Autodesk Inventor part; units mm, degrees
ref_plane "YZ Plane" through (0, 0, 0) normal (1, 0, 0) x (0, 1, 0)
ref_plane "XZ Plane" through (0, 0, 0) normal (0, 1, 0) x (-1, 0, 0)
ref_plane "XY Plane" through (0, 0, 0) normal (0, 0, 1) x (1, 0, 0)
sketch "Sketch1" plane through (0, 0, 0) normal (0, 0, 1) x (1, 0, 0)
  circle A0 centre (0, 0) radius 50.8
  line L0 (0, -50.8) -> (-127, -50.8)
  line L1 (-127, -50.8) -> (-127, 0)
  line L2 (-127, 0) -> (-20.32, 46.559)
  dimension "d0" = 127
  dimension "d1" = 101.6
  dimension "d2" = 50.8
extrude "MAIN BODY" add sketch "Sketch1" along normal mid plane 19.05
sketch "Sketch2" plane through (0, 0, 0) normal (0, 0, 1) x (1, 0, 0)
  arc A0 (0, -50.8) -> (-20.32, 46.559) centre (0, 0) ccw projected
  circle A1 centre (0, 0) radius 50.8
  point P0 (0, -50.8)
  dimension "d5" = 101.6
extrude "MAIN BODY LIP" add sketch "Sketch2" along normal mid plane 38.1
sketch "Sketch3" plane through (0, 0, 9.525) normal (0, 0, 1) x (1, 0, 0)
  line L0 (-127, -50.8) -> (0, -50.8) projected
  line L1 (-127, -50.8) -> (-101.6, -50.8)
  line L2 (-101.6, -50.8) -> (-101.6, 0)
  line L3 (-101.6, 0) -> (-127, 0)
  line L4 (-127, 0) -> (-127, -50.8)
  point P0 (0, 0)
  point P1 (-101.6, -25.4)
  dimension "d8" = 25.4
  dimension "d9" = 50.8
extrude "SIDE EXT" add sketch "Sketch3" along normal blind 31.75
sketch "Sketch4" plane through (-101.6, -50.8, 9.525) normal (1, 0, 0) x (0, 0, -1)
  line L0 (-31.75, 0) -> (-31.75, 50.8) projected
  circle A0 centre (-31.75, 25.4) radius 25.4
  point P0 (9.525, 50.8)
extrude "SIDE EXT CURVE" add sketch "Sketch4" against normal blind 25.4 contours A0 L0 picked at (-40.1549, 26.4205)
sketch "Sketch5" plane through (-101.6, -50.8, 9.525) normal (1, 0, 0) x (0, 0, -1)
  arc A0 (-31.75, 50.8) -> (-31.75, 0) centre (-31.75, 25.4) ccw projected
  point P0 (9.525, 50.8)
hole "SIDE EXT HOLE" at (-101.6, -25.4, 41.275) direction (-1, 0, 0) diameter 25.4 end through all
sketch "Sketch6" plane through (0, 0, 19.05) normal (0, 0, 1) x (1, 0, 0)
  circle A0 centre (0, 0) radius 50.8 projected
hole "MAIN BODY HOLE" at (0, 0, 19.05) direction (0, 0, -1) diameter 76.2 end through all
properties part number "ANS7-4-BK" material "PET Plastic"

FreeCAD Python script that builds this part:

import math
import FreeCAD as App
import Part
import Sketcher

V = App.Vector
Q = App.Units.Quantity

doc = App.newDocument("Part")
body = doc.addObject("PartDesign::Body", "Body")

# Sketch on XY plane
sketch1 = body.newObject("Sketcher::SketchObject", "Sketch")
sketch1.AttachmentSupport = (doc.getObject("XY_Plane"), [""])
sketch1.MapMode = "FlatFace"
sketch1.addGeometry([
    Part.ArcOfCircle(Part.Circle(V(0, 0, 0), V(0, 0, 1), 51), math.radians(-90), math.radians(114)),
    Part.LineSegment(V(-20, 47, 0), V(-127, 0, 0)),
    Part.LineSegment(V(-127, 0, 0), V(-127, -51, 0)),
    Part.LineSegment(V(-127, -51, 0), V(0, -51, 0)),
], False)
sketch1.addConstraint([
    Sketcher.Constraint("Tangent", 0, 2, 1, 1),
    Sketcher.Constraint("Coincident", 1, 2, 2, 1),
    Sketcher.Constraint("Coincident", 2, 2, 3, 1),
    Sketcher.Constraint("Tangent", 3, 2, 0, 1),
    Sketcher.Constraint("Vertical", 2),
    Sketcher.Constraint("Horizontal", 3),
    Sketcher.Constraint("Coincident", 0, 3, -1, 1),
    Sketcher.Constraint("PointOnObject", 1, 2, -1),
    Sketcher.Constraint("Radius", 0, Q("2 in")),
    Sketcher.Constraint("DistanceX", 3, 1, 3, 2, Q("5 in")),
])
pad1 = body.newObject("PartDesign::Pad", "Pad")
pad1.Profile = sketch1
pad1.Length = Q("0.75 in")
pad1.Midplane = True

# Sketch on XY plane
sketch2 = body.newObject("Sketcher::SketchObject", "Sketch001")
sketch2.AttachmentSupport = (doc.getObject("XY_Plane"), [""])
sketch2.MapMode = "FlatFace"
sketch2.addGeometry([
    Part.ArcOfCircle(Part.Circle(V(0, 0, 0), V(0, 0, 1), 51), math.radians(114), math.radians(270)),
    Part.ArcOfCircle(Part.Circle(V(0, 0, 0), V(0, 0, 1), 51), math.radians(-90), math.radians(114)),
], False)
sketch2.addConstraint([
    Sketcher.Constraint("Tangent", 0, 1, 1, 2),
    Sketcher.Constraint("Coincident", 1, 1, 0, 2),
    Sketcher.Constraint("Coincident", 0, 3, -1, 1),
    Sketcher.Constraint("PointOnObject", 1, 1, -2),
    Sketcher.Constraint("Radius", 0, Q("2 in")),
    Sketcher.Constraint("DistanceX", 0, 1, -1, 1, Q("0.8 in")),
])
pad2 = body.newObject("PartDesign::Pad", "Pad001")
pad2.Profile = sketch2
pad2.Length = Q("1.5 in")
pad2.Midplane = True

# Sketch on XY plane
sketch3 = body.newObject("Sketcher::SketchObject", "Sketch002")
sketch3.AttachmentSupport = (doc.getObject("XY_Plane"), [""])
sketch3.MapMode = "FlatFace"
sketch3.AttachmentOffset = App.Placement(V(0, 0, 0.375 * 25.4), App.Rotation())
sketch3.addGeometry([
    Part.LineSegment(V(-127, 0, 0), V(-127, -51, 0)),
    Part.LineSegment(V(-127, -51, 0), V(-102, -51, 0)),
    Part.LineSegment(V(-102, -51, 0), V(-102, 0, 0)),
    Part.LineSegment(V(-102, 0, 0), V(-127, 0, 0)),
], False)
sketch3.addConstraint([
    Sketcher.Constraint("Coincident", 0, 2, 1, 1),
    Sketcher.Constraint("Coincident", 1, 2, 2, 1),
    Sketcher.Constraint("Coincident", 2, 2, 3, 1),
    Sketcher.Constraint("Coincident", 3, 2, 0, 1),
    Sketcher.Constraint("Vertical", 0),
    Sketcher.Constraint("Horizontal", 1),
    Sketcher.Constraint("Vertical", 2),
    Sketcher.Constraint("Horizontal", 3),
    Sketcher.Constraint("PointOnObject", 2, 2, -1),
    Sketcher.Constraint("DistanceX", 1, 1, 1, 2, Q("1 in")),
    Sketcher.Constraint("DistanceY", 0, 2, 0, 1, Q("2 in")),
    Sketcher.Constraint("DistanceX", 0, 2, -1, 1, Q("5 in")),
])
pad3 = body.newObject("PartDesign::Pad", "Pad002")
pad3.Profile = sketch3
pad3.Length = Q("1.25 in")

# Sketch on YZ plane
sketch4 = body.newObject("Sketcher::SketchObject", "Sketch003")
sketch4.AttachmentSupport = (doc.getObject("YZ_Plane"), [""])
sketch4.MapMode = "FlatFace"
sketch4.AttachmentOffset = App.Placement(V(0, 0, -4 * 25.4), App.Rotation())
sketch4.addGeometry([
    Part.ArcOfCircle(Part.Circle(V(-25, 41, 0), V(0, 0, 1), 25), math.radians(0), math.radians(180)),
    Part.LineSegment(V(-51, 41, 0), V(0, 41, 0)),
], False)
sketch4.addConstraint([
    Sketcher.Constraint("Coincident", 0, 1, 1, 2),
    Sketcher.Constraint("Coincident", 1, 1, 0, 2),
    Sketcher.Constraint("Horizontal", 1),
    Sketcher.Constraint("PointOnObject", 0, 1, -2),
    Sketcher.Constraint("Radius", 0, Q("1 in")),
    Sketcher.Constraint("DistanceY", -1, 1, 0, 3, Q("1.625 in")),
    Sketcher.Constraint("DistanceY", -1, 1, 0, 1, Q("1.625 in")),
])
pad4 = body.newObject("PartDesign::Pad", "Pad003")
pad4.Profile = sketch4
pad4.Length = Q("1 in")
pad4.Reversed = True

# Sketch on YZ plane
sketch5 = body.newObject("Sketcher::SketchObject", "Sketch004")
sketch5.AttachmentSupport = (doc.getObject("YZ_Plane"), [""])
sketch5.MapMode = "FlatFace"
sketch5.AttachmentOffset = App.Placement(V(0, 0, -4 * 25.4), App.Rotation())
sketch5.addGeometry(Part.Circle(V(-25, 41, 0), V(0, 0, 1), 13), False)
sketch5.addConstraint([
    Sketcher.Constraint("Diameter", 0, Q("1 in")),
    Sketcher.Constraint("DistanceX", 0, 3, -1, 1, Q("1 in")),
    Sketcher.Constraint("DistanceY", -1, 1, 0, 3, Q("1.625 in")),
])
doc.recompute()
hole = body.newObject("PartDesign::Hole", "Hole")
hole.Profile = sketch5
hole.ThreadType = "None"
hole.Diameter = Q("1 in")
hole.DepthType = "ThroughAll"

# Sketch on XY plane
sketch6 = body.newObject("Sketcher::SketchObject", "Sketch005")
sketch6.AttachmentSupport = (doc.getObject("XY_Plane"), [""])
sketch6.MapMode = "FlatFace"
sketch6.AttachmentOffset = App.Placement(V(0, 0, 0.75 * 25.4), App.Rotation())
sketch6.addGeometry(Part.Circle(V(0, 0, 0), V(0, 0, 1), 38), False)
sketch6.addConstraint([
    Sketcher.Constraint("Coincident", 0, 3, -1, 1),
    Sketcher.Constraint("Diameter", 0, Q("3 in")),
])
doc.recompute()
hole2 = body.newObject("PartDesign::Hole", "Hole001")
hole2.Profile = sketch6
hole2.ThreadType = "None"
hole2.Diameter = Q("3 in")
hole2.DepthType = "ThroughAll"

doc.recompute()
